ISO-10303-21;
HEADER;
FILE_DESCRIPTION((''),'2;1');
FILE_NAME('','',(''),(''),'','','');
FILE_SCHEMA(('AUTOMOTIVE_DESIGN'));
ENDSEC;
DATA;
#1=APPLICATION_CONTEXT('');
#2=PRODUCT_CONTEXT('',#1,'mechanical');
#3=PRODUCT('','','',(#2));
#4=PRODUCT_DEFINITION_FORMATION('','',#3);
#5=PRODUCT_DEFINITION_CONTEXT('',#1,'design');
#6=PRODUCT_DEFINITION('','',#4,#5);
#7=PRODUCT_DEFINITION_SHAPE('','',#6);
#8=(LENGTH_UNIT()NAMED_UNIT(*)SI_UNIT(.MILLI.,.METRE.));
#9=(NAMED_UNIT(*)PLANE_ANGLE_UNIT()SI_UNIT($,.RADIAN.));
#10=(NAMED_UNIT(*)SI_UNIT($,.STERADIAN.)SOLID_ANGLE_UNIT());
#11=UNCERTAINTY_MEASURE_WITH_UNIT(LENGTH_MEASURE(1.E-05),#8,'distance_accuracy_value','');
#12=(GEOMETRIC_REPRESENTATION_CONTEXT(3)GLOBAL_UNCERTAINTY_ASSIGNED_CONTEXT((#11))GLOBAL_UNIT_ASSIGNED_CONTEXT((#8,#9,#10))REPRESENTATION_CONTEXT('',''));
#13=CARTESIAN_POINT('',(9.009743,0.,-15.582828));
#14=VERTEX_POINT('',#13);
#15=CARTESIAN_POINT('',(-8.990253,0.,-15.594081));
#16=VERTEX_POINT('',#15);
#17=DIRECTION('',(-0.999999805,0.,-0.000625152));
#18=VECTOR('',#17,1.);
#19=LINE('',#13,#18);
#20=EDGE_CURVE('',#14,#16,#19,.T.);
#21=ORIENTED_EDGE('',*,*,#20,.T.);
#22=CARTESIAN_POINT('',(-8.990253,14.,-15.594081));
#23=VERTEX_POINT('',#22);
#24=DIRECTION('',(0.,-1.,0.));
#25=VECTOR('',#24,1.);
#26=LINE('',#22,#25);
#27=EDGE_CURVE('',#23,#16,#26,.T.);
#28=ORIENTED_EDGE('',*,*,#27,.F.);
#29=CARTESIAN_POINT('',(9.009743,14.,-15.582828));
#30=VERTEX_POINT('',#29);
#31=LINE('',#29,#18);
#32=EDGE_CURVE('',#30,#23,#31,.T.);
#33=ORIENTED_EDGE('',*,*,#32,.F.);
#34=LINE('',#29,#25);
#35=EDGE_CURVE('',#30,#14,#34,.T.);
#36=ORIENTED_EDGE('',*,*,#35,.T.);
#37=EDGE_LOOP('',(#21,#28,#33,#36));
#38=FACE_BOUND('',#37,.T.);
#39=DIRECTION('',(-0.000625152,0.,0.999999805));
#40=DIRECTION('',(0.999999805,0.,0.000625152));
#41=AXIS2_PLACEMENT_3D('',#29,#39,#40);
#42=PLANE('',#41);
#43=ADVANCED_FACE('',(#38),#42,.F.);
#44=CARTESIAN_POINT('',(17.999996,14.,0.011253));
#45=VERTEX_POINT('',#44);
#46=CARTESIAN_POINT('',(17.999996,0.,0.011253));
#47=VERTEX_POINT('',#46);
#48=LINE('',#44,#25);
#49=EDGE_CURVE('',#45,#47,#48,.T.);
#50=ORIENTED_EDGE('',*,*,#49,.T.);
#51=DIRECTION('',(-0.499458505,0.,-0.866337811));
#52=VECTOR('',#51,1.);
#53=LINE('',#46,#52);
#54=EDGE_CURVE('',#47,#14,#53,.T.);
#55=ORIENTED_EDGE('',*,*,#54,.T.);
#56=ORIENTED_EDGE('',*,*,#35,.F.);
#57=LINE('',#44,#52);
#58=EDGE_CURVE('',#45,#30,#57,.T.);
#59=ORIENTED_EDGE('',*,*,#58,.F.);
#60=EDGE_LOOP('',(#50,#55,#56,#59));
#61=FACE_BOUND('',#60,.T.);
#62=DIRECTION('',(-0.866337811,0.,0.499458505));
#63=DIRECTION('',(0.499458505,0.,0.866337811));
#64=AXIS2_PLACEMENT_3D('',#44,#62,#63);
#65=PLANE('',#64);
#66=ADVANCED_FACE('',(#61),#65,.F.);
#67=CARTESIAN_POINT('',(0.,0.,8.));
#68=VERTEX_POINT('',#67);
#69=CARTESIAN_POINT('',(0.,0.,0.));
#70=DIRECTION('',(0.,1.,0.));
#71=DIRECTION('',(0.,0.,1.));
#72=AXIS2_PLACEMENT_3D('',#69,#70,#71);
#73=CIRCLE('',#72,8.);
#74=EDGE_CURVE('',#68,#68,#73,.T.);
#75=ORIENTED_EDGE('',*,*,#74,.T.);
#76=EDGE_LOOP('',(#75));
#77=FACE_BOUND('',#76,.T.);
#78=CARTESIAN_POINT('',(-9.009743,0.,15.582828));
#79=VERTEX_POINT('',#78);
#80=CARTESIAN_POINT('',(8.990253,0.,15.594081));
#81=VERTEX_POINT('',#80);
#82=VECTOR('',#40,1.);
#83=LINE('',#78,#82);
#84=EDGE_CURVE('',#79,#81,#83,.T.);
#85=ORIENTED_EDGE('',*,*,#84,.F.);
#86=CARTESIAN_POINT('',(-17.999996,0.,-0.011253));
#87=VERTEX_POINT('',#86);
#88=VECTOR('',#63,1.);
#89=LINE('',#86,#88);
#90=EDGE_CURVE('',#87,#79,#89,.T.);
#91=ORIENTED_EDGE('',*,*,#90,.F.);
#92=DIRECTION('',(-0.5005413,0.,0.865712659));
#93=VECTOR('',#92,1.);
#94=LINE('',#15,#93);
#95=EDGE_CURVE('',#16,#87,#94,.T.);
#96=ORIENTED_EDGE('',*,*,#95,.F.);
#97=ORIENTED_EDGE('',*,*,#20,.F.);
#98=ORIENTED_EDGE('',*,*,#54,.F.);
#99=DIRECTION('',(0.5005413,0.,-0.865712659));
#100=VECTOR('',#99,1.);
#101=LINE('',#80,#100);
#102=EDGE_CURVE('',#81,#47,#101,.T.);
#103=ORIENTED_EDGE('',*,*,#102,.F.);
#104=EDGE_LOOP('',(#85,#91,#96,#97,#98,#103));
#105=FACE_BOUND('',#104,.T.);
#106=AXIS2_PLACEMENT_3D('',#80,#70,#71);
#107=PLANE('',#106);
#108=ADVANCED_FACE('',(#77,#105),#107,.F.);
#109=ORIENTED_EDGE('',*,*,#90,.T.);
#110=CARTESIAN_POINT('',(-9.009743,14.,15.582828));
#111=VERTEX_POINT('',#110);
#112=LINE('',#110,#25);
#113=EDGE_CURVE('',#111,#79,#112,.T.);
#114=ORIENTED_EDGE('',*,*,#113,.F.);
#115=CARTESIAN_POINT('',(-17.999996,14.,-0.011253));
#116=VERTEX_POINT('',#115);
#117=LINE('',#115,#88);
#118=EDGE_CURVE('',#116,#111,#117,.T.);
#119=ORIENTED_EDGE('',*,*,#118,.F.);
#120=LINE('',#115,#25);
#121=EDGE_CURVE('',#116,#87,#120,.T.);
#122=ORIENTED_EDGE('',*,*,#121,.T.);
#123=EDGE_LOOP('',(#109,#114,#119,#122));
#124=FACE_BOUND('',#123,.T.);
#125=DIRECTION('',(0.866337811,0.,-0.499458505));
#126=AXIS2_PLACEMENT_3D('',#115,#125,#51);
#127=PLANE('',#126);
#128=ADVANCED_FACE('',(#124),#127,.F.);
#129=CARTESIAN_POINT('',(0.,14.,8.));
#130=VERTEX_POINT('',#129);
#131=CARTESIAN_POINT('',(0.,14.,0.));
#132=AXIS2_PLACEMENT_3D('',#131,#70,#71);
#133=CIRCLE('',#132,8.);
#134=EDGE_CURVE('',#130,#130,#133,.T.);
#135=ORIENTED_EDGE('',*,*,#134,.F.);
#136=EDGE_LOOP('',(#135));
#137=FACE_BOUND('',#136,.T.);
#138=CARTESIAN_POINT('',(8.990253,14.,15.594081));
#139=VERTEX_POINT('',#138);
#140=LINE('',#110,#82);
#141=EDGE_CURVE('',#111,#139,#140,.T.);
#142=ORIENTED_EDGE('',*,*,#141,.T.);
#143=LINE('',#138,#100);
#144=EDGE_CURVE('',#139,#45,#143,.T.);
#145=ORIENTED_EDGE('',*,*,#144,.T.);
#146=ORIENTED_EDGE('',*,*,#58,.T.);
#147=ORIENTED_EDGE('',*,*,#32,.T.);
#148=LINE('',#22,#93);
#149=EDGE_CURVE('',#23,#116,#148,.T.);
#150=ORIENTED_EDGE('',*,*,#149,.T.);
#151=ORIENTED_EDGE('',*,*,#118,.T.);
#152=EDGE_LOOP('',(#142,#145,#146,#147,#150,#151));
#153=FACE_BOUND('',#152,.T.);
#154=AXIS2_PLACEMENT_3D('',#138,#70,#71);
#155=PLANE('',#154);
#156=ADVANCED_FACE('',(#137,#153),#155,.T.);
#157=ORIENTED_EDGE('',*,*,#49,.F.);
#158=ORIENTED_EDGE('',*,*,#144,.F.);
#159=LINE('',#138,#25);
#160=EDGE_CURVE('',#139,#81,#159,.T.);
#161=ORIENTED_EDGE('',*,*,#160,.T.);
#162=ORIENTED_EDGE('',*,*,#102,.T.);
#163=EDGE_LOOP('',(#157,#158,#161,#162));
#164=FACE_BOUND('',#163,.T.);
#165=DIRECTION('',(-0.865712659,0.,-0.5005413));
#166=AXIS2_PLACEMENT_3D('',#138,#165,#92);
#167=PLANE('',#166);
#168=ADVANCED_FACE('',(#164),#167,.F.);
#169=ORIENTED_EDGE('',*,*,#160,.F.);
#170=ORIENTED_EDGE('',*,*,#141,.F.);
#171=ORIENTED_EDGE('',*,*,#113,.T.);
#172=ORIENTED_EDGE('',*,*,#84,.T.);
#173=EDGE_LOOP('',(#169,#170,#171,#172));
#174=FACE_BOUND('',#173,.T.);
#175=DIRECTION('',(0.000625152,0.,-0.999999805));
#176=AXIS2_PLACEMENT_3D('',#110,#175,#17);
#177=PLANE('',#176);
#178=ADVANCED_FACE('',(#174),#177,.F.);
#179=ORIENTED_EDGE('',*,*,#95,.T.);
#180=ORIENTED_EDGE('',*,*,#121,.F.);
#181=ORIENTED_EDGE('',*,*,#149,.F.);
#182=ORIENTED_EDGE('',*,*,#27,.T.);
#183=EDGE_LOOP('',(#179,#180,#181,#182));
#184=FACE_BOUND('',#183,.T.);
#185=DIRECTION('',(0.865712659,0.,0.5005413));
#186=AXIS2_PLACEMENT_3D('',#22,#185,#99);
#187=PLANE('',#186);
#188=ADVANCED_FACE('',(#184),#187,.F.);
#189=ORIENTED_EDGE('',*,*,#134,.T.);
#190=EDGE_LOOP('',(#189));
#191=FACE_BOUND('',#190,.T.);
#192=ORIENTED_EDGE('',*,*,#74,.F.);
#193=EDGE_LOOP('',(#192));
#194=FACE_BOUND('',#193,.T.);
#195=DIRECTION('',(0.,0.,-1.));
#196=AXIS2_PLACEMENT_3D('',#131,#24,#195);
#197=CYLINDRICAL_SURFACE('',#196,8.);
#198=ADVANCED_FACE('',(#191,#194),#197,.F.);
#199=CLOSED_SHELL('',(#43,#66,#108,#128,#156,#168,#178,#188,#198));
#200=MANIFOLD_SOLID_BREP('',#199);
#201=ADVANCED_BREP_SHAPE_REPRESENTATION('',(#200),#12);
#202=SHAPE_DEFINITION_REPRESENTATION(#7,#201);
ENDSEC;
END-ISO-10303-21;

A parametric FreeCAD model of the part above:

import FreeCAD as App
import Part
import Sketcher

V = App.Vector
Q = App.Units.Quantity


def add_polygon(sketch, points):
    """Adds a closed chain of lines whose ends are joined by coincident constraints."""
    first, n = sketch.GeometryCount, len(points)
    for a, b in zip(points, points[1:] + points[:1]):
        sketch.addGeometry(Part.LineSegment(App.Vector(*a, 0), App.Vector(*b, 0)), False)
    for i in range(n):
        sketch.addConstraint(Sketcher.Constraint("Coincident", first + i, 2, first + (i + 1) % n, 1))

doc = App.newDocument("Part")
params = doc.addObject("Spreadsheet::Sheet", "Params")
for row, (alias, value) in enumerate([
    ("sketch1_diameter", "16 mm"),
    ("sketch1_length", "18 mm"),
    ("pad1_length", "14 mm"),
], start=1):
    params.set(f"A{row}", alias)
    params.set(f"B{row}", "=" + value)
    params.setAlias(f"B{row}", alias)

body = doc.addObject("PartDesign::Body", "Body")

# Sketch on XZ plane
sketch1 = body.newObject("Sketcher::SketchObject", "Sketch")
sketch1.AttachmentSupport = (doc.getObject("XZ_Plane"), [""])
sketch1.MapMode = "FlatFace"
add_polygon(sketch1, [(9, 16), (18, 0), (9, -16), (-9, -16), (-18, 0), (-9, 16)])  # lines 0-5
sketch1.addGeometry(Part.Circle(V(0, 0, 0), V(0, 0, 1), 8), False)  # 6
sketch1.addConstraint([
    Sketcher.Constraint("Coincident", 6, 3, -1, 1),
    Sketcher.Constraint("Symmetric", 0, 2, 3, 2, -1, 1),
    Sketcher.Constraint("Symmetric", 1, 2, 4, 2, -1, 1),
    Sketcher.Constraint("Symmetric", 2, 2, 5, 2, -1, 1),
    Sketcher.Constraint("Equal", 0, 1),
    Sketcher.Constraint("Equal", 1, 2),
    Sketcher.Constraint("Diameter", 6, Q("16 mm")),
    Sketcher.Constraint("Distance", 0, Q("18 mm")),
    Sketcher.Constraint("DistanceY", 2, 2, -1, 1, Q("15.594081 mm")),
    Sketcher.Constraint("DistanceY", 1, 2, 0, 2, Q("15.594081 mm")),
    Sketcher.Constraint("DistanceX", 3, 2, 1, 2, Q("27.00974 mm")),
])
sketch1.setExpression("Constraints[12]", "Params.sketch1_diameter")
sketch1.setExpression("Constraints[13]", "Params.sketch1_length")
pad1 = body.newObject("PartDesign::Pad", "Pad")
pad1.Profile = sketch1
pad1.setExpression("Length", "Params.pad1_length")
pad1.Reversed = True

doc.recompute()
